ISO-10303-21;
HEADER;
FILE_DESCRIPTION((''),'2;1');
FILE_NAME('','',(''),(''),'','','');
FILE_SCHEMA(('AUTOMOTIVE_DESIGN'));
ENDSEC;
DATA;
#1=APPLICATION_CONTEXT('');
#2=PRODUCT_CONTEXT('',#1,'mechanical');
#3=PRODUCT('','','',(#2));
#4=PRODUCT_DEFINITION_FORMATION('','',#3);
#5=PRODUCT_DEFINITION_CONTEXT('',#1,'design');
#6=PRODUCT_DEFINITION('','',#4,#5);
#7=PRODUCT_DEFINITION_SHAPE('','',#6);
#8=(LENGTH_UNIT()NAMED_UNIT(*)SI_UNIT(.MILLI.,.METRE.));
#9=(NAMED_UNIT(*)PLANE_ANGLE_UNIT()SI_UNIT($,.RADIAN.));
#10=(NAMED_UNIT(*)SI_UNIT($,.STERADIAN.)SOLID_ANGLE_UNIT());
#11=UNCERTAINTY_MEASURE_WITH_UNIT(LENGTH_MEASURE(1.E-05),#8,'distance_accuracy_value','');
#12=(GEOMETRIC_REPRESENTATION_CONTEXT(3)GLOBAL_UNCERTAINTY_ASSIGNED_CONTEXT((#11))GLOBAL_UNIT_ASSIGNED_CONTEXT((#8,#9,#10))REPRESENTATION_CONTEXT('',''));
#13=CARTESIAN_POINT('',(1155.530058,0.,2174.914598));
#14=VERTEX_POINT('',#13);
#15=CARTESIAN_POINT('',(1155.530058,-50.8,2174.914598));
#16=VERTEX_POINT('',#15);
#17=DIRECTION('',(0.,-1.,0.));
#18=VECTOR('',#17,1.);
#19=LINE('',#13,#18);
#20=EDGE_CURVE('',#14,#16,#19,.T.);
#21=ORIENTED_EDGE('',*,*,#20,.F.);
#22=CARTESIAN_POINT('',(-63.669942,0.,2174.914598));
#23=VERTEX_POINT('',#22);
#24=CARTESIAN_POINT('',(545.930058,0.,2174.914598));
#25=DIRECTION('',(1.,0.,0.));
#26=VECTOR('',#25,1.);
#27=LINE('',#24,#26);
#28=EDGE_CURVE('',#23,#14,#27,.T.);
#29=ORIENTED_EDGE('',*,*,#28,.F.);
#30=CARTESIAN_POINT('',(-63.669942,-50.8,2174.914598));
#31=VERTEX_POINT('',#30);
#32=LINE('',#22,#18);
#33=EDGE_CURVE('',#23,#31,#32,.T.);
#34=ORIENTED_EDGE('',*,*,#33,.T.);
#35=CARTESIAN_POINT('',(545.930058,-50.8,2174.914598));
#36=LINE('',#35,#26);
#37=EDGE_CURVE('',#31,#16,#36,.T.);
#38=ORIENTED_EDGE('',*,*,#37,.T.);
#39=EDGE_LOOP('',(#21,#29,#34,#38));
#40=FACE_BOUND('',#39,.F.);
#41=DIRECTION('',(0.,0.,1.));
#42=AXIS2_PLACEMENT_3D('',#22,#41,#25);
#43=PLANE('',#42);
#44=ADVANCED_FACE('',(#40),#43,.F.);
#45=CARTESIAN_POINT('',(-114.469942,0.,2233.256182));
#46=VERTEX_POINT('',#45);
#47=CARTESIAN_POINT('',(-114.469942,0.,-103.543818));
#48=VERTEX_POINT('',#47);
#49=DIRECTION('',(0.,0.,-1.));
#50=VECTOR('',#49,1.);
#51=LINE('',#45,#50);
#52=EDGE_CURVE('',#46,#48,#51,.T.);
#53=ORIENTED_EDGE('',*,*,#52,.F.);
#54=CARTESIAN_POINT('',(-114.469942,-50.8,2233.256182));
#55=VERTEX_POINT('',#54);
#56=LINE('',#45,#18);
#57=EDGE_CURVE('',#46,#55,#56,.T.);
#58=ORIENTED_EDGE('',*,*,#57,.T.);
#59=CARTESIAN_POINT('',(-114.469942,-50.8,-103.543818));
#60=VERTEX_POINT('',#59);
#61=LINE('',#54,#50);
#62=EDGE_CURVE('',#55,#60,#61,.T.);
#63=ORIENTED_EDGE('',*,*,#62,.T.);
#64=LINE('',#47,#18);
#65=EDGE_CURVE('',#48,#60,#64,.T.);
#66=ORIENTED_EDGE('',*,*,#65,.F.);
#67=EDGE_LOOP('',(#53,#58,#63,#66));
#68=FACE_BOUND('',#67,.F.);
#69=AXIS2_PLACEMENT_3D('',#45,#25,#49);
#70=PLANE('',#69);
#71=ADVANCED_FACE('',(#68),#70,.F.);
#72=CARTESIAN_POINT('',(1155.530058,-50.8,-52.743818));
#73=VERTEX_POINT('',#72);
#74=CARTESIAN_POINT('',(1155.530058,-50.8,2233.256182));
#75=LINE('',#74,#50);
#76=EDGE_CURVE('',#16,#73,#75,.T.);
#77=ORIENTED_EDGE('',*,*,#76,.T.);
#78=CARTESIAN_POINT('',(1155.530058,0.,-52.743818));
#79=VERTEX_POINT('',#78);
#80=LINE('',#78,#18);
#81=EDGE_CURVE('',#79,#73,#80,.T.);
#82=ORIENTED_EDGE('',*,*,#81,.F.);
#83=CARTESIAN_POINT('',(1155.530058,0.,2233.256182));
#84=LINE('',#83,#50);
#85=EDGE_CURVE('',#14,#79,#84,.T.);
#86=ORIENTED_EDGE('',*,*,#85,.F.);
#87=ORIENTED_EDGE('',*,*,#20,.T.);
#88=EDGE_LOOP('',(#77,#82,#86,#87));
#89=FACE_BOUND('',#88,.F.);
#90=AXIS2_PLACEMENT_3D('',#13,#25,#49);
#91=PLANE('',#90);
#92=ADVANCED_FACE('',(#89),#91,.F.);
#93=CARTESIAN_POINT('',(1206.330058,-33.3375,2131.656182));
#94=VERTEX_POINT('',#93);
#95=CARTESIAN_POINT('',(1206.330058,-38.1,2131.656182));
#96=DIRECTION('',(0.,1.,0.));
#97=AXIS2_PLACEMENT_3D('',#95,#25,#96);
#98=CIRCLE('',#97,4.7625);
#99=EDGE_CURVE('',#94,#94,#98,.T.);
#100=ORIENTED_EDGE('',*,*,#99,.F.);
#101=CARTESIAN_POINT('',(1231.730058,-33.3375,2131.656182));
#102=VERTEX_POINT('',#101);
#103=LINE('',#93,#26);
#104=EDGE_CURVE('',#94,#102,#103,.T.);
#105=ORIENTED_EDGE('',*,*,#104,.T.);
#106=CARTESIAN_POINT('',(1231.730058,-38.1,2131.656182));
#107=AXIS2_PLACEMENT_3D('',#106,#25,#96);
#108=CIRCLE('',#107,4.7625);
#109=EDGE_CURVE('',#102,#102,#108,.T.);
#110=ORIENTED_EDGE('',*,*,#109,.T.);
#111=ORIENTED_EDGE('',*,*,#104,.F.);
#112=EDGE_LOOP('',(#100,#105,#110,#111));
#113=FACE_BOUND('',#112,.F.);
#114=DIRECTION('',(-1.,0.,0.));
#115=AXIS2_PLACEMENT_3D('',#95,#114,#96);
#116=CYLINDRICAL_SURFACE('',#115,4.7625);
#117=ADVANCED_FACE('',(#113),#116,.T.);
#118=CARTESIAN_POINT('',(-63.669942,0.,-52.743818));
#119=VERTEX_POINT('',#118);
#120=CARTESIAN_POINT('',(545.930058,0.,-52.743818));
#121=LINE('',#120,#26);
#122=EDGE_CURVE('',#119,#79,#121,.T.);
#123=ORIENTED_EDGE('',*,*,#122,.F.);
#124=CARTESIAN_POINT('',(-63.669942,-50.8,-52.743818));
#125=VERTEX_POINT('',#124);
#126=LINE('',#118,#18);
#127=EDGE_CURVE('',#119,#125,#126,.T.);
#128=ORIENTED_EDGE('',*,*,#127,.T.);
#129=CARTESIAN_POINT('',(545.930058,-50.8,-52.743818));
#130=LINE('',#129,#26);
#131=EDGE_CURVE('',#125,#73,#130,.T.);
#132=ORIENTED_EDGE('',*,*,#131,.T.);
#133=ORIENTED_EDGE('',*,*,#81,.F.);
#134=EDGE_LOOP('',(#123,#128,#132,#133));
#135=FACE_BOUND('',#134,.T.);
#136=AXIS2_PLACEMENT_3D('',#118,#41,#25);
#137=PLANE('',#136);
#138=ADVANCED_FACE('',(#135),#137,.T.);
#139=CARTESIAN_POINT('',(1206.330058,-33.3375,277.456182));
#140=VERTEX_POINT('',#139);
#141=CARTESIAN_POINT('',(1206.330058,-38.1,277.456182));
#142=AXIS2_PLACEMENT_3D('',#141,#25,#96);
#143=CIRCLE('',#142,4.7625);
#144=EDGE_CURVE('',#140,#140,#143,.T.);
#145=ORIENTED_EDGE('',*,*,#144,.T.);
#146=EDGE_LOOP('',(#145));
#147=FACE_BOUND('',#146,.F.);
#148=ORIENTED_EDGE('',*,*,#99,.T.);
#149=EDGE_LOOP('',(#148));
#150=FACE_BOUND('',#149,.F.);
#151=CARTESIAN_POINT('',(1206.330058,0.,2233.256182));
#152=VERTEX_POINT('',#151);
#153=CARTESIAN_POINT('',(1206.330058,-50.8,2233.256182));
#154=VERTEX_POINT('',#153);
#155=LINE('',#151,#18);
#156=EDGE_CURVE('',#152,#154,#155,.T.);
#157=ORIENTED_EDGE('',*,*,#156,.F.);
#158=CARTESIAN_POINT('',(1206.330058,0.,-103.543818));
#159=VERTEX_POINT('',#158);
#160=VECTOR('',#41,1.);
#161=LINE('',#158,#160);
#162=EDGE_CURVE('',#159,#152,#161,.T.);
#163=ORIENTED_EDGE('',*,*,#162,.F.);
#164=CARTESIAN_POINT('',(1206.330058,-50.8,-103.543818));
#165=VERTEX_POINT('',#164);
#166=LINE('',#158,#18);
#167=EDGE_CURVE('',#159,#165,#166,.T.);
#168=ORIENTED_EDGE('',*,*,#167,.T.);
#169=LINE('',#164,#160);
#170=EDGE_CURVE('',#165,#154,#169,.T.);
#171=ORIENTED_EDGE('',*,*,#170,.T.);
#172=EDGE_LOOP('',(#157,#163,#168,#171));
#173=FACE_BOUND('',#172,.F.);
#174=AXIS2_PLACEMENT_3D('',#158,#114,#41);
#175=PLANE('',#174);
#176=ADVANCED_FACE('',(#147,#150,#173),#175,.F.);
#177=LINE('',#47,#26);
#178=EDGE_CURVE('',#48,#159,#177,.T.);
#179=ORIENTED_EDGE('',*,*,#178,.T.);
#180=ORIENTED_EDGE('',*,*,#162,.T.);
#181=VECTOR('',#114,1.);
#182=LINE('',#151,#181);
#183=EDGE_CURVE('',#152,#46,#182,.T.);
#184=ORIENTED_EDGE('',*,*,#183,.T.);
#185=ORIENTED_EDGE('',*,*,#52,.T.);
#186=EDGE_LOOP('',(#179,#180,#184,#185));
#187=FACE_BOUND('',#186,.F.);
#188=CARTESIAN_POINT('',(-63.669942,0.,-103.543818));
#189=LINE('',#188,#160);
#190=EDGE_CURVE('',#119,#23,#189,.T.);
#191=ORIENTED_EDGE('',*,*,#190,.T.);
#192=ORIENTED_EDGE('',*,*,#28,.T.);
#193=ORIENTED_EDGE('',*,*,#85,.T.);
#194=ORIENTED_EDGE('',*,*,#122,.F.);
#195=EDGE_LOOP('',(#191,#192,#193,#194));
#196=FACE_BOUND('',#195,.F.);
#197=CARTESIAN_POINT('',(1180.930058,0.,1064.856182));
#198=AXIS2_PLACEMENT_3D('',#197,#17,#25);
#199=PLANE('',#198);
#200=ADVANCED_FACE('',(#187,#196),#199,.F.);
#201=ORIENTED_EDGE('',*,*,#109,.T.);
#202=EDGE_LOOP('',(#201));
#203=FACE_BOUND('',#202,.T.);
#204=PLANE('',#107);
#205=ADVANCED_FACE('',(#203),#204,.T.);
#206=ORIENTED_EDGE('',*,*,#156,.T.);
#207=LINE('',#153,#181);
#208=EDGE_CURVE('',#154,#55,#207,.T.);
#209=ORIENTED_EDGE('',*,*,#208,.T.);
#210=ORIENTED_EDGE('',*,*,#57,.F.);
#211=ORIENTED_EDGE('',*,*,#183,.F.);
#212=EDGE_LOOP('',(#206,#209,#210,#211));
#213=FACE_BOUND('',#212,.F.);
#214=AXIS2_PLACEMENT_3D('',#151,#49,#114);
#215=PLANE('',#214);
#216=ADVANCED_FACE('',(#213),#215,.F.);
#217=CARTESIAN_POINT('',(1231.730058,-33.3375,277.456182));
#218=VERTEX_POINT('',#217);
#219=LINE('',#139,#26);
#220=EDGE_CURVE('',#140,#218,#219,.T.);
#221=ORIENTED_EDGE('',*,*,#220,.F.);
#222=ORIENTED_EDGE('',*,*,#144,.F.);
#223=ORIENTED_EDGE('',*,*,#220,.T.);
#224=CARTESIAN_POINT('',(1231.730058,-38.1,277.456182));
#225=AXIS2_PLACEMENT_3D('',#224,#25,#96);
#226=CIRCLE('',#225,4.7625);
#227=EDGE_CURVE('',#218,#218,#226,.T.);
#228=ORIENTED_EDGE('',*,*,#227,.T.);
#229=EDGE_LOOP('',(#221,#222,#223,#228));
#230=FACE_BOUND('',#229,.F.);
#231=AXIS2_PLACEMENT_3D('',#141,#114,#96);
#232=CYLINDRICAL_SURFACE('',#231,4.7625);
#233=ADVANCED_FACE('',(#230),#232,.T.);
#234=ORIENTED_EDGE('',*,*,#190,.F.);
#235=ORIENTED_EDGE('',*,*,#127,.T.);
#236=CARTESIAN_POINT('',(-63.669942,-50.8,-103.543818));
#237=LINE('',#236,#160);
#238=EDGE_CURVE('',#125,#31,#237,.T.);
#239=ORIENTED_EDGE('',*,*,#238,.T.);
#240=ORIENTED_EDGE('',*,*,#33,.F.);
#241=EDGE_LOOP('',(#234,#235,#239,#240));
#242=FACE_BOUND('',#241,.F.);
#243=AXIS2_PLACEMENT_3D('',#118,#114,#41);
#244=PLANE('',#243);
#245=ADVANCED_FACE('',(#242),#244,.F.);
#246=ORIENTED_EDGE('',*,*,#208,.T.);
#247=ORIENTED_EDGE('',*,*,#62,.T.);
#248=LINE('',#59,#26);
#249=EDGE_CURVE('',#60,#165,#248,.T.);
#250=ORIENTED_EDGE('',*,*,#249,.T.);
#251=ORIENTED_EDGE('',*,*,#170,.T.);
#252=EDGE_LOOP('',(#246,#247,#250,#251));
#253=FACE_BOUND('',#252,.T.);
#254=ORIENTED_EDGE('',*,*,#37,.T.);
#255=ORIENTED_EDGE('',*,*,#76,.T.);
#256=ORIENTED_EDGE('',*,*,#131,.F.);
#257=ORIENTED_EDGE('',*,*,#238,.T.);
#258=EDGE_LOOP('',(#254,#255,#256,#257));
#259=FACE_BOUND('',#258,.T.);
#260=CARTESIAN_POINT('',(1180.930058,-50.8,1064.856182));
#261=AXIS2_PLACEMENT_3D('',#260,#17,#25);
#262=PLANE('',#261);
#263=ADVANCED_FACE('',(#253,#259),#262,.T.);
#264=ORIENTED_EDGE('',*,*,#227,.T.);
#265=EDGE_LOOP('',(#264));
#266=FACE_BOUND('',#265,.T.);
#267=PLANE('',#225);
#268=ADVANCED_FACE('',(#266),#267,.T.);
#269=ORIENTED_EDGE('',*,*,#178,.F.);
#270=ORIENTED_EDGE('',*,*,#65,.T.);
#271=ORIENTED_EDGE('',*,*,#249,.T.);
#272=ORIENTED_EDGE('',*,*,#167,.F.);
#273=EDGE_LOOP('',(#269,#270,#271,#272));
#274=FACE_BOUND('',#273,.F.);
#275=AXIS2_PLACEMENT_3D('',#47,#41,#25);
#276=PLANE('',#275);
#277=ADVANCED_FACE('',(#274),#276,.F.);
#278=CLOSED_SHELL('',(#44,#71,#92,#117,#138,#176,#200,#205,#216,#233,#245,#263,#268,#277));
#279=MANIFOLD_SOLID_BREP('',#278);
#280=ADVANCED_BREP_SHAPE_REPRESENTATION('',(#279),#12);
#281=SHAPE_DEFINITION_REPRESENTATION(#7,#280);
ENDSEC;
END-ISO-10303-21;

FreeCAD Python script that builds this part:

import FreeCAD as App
import Part
import Sketcher
from FreeCAD import Vector
Q = App.Units.Quantity

doc = App.newDocument("Part")
body = doc.addObject("PartDesign::Body", "Body")

sketch1 = body.newObject("Sketcher::SketchObject", "Sketch")
sketch1.AttachmentSupport = (doc.getObject("XZ_Plane"), [""])
sketch1.MapMode = "FlatFace"
sketch1.addGeometry([
    Part.LineSegment(Vector(1206, 2233, 0), Vector(-114, 2233, 0)),
    Part.LineSegment(Vector(-114, 2233, 0), Vector(-114, -104, 0)),
    Part.LineSegment(Vector(-114, -104, 0), Vector(1206, -104, 0)),
    Part.LineSegment(Vector(1206, -104, 0), Vector(1206, 2233, 0)),
    Part.LineSegment(Vector(-64, -53, 0), Vector(-64, 2175, 0)),
    Part.LineSegment(Vector(-64, 2175, 0), Vector(1156, 2175, 0)),
    Part.LineSegment(Vector(1156, 2175, 0), Vector(1156, -53, 0)),
    Part.LineSegment(Vector(1156, -53, 0), Vector(-64, -53, 0)),
], False)
sketch1.addConstraint([
    Sketcher.Constraint("Coincident", 0, 2, 1, 1),
    Sketcher.Constraint("Coincident", 1, 2, 2, 1),
    Sketcher.Constraint("Coincident", 2, 2, 3, 1),
    Sketcher.Constraint("Coincident", 3, 2, 0, 1),
    Sketcher.Constraint("Coincident", 4, 2, 5, 1),
    Sketcher.Constraint("Coincident", 5, 2, 6, 1),
    Sketcher.Constraint("Coincident", 6, 2, 7, 1),
    Sketcher.Constraint("Coincident", 7, 2, 4, 1),
    Sketcher.Constraint("Horizontal", 0),
    Sketcher.Constraint("Vertical", 1),
    Sketcher.Constraint("Horizontal", 2),
    Sketcher.Constraint("Vertical", 3),
    Sketcher.Constraint("Vertical", 4),
    Sketcher.Constraint("Horizontal", 5),
    Sketcher.Constraint("Vertical", 6),
    Sketcher.Constraint("Horizontal", 7),
    Sketcher.Constraint("DistanceX", 0, 2, 0, 1, Q("52 in")),
    Sketcher.Constraint("DistanceX", 5, 1, 5, 2, Q("48 in")),
    Sketcher.Constraint("DistanceY", 1, 2, 1, 1, Q("92 in")),
    Sketcher.Constraint("DistanceX", 0, 2, 4, 2, Q("2 in")),
    Sketcher.Constraint("DistanceY", 2, 2, 6, 2, Q("2 in")),
    Sketcher.Constraint("DistanceY", 4, 1, 4, 2, 2227.658416),
    Sketcher.Constraint("DistanceY", 1, 2, -1, 1, 103.543818),
    Sketcher.Constraint("DistanceX", -1, 1, 2, 2, 1206.330058),
])
pad1 = body.newObject("PartDesign::Pad", "Pad")
pad1.Profile = sketch1
pad1.Length = Q("2 in")

sketch2 = body.newObject("Sketcher::SketchObject", "Sketch001")
sketch2.AttachmentSupport = (doc.getObject("YZ_Plane"), [""])
sketch2.MapMode = "FlatFace"
sketch2.AttachmentOffset = App.Placement(Vector(0, 0, 1206.330058), App.Rotation())
sketch2.addGeometry([
    Part.Circle(Vector(-38.1, 2131.7, 0), Vector(0, 0, 1), 4.8),
    Part.Circle(Vector(-38.1, 277.5, 0), Vector(0, 0, 1), 4.8),
], False)
sketch2.addConstraint([
    Sketcher.Constraint("Equal", 0, 1),
    Sketcher.Constraint("Vertical", 0, 3, 1, 3),
    Sketcher.Constraint("Diameter", 0, Q("0.375 in")),
    Sketcher.Constraint("DistanceY", 1, 3, 0, 3, Q("73 in")),
    Sketcher.Constraint("DistanceX", 0, 3, -1, 1, Q("1.5 in")),
    Sketcher.Constraint("DistanceY", -1, 1, 1, 3, 277.456182),
])
pad2 = body.newObject("PartDesign::Pad", "Pad001")
pad2.Profile = sketch2
pad2.Length = Q("1 in")

doc.recompute()
